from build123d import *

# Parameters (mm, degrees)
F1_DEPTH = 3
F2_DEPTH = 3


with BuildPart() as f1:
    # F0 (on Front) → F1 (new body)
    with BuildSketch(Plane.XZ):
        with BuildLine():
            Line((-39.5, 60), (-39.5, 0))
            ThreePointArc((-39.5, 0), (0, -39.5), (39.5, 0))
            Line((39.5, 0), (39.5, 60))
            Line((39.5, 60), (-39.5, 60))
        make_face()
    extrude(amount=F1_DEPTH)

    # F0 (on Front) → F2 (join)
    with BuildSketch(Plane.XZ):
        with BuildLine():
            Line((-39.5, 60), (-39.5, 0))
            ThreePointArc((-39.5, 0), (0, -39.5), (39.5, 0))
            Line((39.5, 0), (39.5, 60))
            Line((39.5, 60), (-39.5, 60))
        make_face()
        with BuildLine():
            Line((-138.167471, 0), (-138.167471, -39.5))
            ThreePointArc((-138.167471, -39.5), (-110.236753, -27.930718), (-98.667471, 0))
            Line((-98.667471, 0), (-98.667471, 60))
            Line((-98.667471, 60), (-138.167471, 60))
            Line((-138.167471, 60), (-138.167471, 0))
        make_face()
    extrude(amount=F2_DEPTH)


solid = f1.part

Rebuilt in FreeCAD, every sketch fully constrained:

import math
import FreeCAD as App
import Part
import Sketcher
Q = App.Units.Quantity

doc = App.newDocument("Part")
body = doc.addObject("PartDesign::Body", "Body")
body.AllowCompound = True

sketch1 = doc.addObject("Sketcher::SketchObject", "Sketch")
body.addObject(sketch1)
sketch1.AttachmentSupport = (doc.XZ_Plane, [""])
sketch1.MapMode = "FlatFace"
sketch1.addGeometry(Part.LineSegment(App.Vector(-40, 60, 0), App.Vector(-40, 0, 0)), False)
sketch1.addGeometry(Part.ArcOfCircle(Part.Circle(App.Vector(0, 0, 0), App.Vector(0, 0, 1), 40), math.radians(180), math.radians(360)), False)
sketch1.addGeometry(Part.LineSegment(App.Vector(40, 0, 0), App.Vector(40, 60, 0)), False)
sketch1.addGeometry(Part.LineSegment(App.Vector(40, 60, 0), App.Vector(-40, 60, 0)), False)
sketch1.addConstraint(Sketcher.Constraint("Tangent", 0, 2, 1, 1))
sketch1.addConstraint(Sketcher.Constraint("Tangent", 1, 2, 2, 1))
sketch1.addConstraint(Sketcher.Constraint("Coincident", 2, 2, 3, 1))
sketch1.addConstraint(Sketcher.Constraint("Coincident", 3, 2, 0, 1))
sketch1.addConstraint(Sketcher.Constraint("Vertical", 0))
sketch1.addConstraint(Sketcher.Constraint("Vertical", 2))
sketch1.addConstraint(Sketcher.Constraint("Horizontal", 3))
sketch1.addConstraint(Sketcher.Constraint("Coincident", 1, 3, -1, 1))
sketch1.addConstraint(Sketcher.Constraint("Radius", 1, Q("39.5 mm")))
sketch1.addConstraint(Sketcher.Constraint("DistanceY", 0, 2, 0, 1, Q("60 mm")))
pad1 = doc.addObject("PartDesign::Pad", "Pad")
body.addObject(pad1)
pad1.Profile = sketch1
pad1.Length = 3

sketch2 = doc.addObject("Sketcher::SketchObject", "Sketch001")
body.addObject(sketch2)
sketch2.AttachmentSupport = (doc.XZ_Plane, [""])
sketch2.MapMode = "FlatFace"
sketch2.addGeometry(Part.LineSegment(App.Vector(-40, 60, 0), App.Vector(-40, 0, 0)), False)
sketch2.addGeometry(Part.ArcOfCircle(Part.Circle(App.Vector(0, 0, 0), App.Vector(0, 0, 1), 40), math.radians(180), math.radians(360)), False)
sketch2.addGeometry(Part.LineSegment(App.Vector(40, 0, 0), App.Vector(40, 60, 0)), False)
sketch2.addGeometry(Part.LineSegment(App.Vector(40, 60, 0), App.Vector(-40, 60, 0)), False)
sketch2.addGeometry(Part.ArcOfCircle(Part.Circle(App.Vector(-138, 0, 0), App.Vector(0, 0, 1), 39), math.radians(-90), math.radians(0)), False)
sketch2.addGeometry(Part.LineSegment(App.Vector(-99, 0, 0), App.Vector(-99, 60, 0)), False)
sketch2.addGeometry(Part.LineSegment(App.Vector(-99, 60, 0), App.Vector(-138, 60, 0)), False)
sketch2.addGeometry(Part.LineSegment(App.Vector(-138, 60, 0), App.Vector(-138, -40, 0)), False)
sketch2.addConstraint(Sketcher.Constraint("Tangent", 0, 2, 1, 1))
sketch2.addConstraint(Sketcher.Constraint("Tangent", 1, 2, 2, 1))
sketch2.addConstraint(Sketcher.Constraint("Coincident", 2, 2, 3, 1))
sketch2.addConstraint(Sketcher.Constraint("Coincident", 3, 2, 0, 1))
sketch2.addConstraint(Sketcher.Constraint("Tangent", 4, 2, 5, 1))
sketch2.addConstraint(Sketcher.Constraint("Coincident", 5, 2, 6, 1))
sketch2.addConstraint(Sketcher.Constraint("Coincident", 6, 2, 7, 1))
sketch2.addConstraint(Sketcher.Constraint("Coincident", 7, 2, 4, 1))
sketch2.addConstraint(Sketcher.Constraint("Vertical", 0))
sketch2.addConstraint(Sketcher.Constraint("Vertical", 2))
sketch2.addConstraint(Sketcher.Constraint("Horizontal", 3))
sketch2.addConstraint(Sketcher.Constraint("Vertical", 5))
sketch2.addConstraint(Sketcher.Constraint("Horizontal", 6))
sketch2.addConstraint(Sketcher.Constraint("Vertical", 7))
sketch2.addConstraint(Sketcher.Constraint("Coincident", 1, 3, -1, 1))
sketch2.addConstraint(Sketcher.Constraint("Equal", 1, 4))
sketch2.addConstraint(Sketcher.Constraint("PointOnObject", 4, 3, -1))
sketch2.addConstraint(Sketcher.Constraint("Horizontal", 3, 2, 5, 2))
sketch2.addConstraint(Sketcher.Constraint("Vertical", 4, 3, 6, 2))
sketch2.addConstraint(Sketcher.Constraint("Radius", 1, Q("39.5 mm")))
sketch2.addConstraint(Sketcher.Constraint("DistanceY", 0, 2, 0, 1, Q("60 mm")))
sketch2.addConstraint(Sketcher.Constraint("DistanceX", 4, 3, -1, 1, Q("138.167471 mm")))
pad2 = doc.addObject("PartDesign::Pad", "Pad001")
body.addObject(pad2)
pad2.Profile = sketch2
pad2.Length = 3

doc.recompute()
